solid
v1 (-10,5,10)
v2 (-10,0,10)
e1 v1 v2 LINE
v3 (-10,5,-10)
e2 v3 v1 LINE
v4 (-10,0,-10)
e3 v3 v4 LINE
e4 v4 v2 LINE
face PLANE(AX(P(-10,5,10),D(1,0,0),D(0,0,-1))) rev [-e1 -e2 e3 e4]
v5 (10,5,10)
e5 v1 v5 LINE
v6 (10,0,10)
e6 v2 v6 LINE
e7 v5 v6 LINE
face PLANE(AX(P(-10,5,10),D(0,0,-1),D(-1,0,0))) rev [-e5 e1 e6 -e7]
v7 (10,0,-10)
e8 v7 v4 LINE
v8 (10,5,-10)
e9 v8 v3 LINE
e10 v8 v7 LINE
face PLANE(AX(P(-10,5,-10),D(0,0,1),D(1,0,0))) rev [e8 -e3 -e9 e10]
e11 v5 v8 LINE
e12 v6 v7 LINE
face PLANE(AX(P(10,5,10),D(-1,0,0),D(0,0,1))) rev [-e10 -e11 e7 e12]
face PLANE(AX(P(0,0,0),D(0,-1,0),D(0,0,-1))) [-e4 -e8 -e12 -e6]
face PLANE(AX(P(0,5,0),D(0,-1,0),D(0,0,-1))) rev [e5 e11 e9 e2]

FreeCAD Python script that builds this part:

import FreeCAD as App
import Part
import Sketcher
Q = App.Units.Quantity


def add_polygon(sketch, points):
    """Adds a closed chain of lines whose ends are joined by coincident constraints."""
    first, n = sketch.GeometryCount, len(points)
    for a, b in zip(points, points[1:] + points[:1]):
        sketch.addGeometry(Part.LineSegment(App.Vector(*a, 0), App.Vector(*b, 0)), False)
    for i in range(n):
        sketch.addConstraint(Sketcher.Constraint("Coincident", first + i, 2, first + (i + 1) % n, 1))

doc = App.newDocument("Part")
body = doc.addObject("PartDesign::Body", "Body")

# Sketch on XZ plane
sketch1 = doc.addObject("Sketcher::SketchObject", "Sketch")
body.addObject(sketch1)
sketch1.AttachmentSupport = (doc.XZ_Plane, [""])
sketch1.MapMode = "FlatFace"
add_polygon(sketch1, [(-10, -10), (-10, 10), (10, 10), (10, -10)])  # lines 0-3
sketch1.addConstraint(Sketcher.Constraint("Vertical", 0))
sketch1.addConstraint(Sketcher.Constraint("Horizontal", 1))
sketch1.addConstraint(Sketcher.Constraint("Vertical", 2))
sketch1.addConstraint(Sketcher.Constraint("Horizontal", 3))
sketch1.addConstraint(Sketcher.Constraint("Symmetric", 0, 2, 2, 2, -1, 1))
sketch1.addConstraint(Sketcher.Constraint("Equal", 3, 0))
sketch1.addConstraint(Sketcher.Constraint("DistanceX", 1, 1, 1, 2, Q("20 mm")))
pad1 = doc.addObject("PartDesign::Pad", "Pad")
body.addObject(pad1)
pad1.Profile = sketch1
pad1.Length = 5
pad1.Reversed = True

doc.recompute()
